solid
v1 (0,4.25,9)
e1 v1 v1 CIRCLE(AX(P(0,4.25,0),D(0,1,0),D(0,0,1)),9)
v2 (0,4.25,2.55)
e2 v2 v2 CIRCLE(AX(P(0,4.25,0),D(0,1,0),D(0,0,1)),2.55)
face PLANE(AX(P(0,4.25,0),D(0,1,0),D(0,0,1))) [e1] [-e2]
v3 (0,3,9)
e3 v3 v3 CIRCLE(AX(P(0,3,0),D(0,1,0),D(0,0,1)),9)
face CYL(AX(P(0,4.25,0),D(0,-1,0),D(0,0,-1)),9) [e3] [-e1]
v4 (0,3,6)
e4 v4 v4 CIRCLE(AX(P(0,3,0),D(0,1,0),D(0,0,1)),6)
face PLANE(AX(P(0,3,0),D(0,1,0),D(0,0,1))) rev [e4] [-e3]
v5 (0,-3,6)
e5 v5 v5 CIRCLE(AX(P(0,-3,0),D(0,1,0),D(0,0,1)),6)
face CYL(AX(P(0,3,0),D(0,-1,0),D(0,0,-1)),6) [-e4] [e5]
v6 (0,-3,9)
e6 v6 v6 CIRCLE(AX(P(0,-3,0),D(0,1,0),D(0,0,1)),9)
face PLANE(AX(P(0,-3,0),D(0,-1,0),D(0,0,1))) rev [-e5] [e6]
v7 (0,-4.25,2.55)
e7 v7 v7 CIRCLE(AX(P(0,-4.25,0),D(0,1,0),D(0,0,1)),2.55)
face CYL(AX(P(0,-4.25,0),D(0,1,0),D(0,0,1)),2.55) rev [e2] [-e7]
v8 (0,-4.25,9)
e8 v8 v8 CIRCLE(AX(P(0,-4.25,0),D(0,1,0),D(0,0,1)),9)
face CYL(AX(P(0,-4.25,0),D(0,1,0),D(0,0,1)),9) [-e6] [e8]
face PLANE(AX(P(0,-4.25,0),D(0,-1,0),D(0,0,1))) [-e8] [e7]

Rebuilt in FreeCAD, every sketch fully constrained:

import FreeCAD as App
import Part
import Sketcher
from FreeCAD import Vector
Q = App.Units.Quantity

doc = App.newDocument("Part")
body = doc.addObject("PartDesign::Body", "Body")

# Sketch on XZ plane
sketch1 = doc.addObject("Sketcher::SketchObject", "Sketch")
body.addObject(sketch1)
sketch1.AttachmentSupport = (doc.XZ_Plane, [""])
sketch1.MapMode = "FlatFace"
sketch1.addGeometry(Part.Circle(Vector(0, 0, 0), Vector(0, 0, 1), 6), False)
sketch1.addConstraint([
    Sketcher.Constraint("Coincident", 0, 3, -1, 1),
    Sketcher.Constraint("Diameter", 0, Q("12 mm")),
])
pad1 = doc.addObject("PartDesign::Pad", "Pad")
body.addObject(pad1)
pad1.Profile = sketch1
pad1.Length = 6
pad1.Midplane = True

# Sketch on XZ plane
sketch2 = doc.addObject("Sketcher::SketchObject", "Sketch001")
body.addObject(sketch2)
sketch2.AttachmentSupport = (doc.XZ_Plane, [""])
sketch2.MapMode = "FlatFace"
sketch2.AttachmentOffset = App.Placement(Vector(0, 0, -3), App.Rotation())
sketch2.addGeometry(Part.Circle(Vector(0, 0, 0), Vector(0, 0, 1), 9), False)
sketch2.addConstraint([
    Sketcher.Constraint("Coincident", 0, 3, -1, 1),
    Sketcher.Constraint("Diameter", 0, Q("18 mm")),
])
pad2 = doc.addObject("PartDesign::Pad", "Pad001")
body.addObject(pad2)
pad2.Profile = sketch2
pad2.Length = 1.25
pad2.Reversed = True
doc.recompute()

mirrored = doc.addObject("PartDesign::Mirrored", "Mirrored")
body.addObject(mirrored)
mirrored.Originals = [pad2]
mirrored.MirrorPlane = (doc.XZ_Plane, [""])
body.Tip = mirrored

# Sketch on XZ plane
sketch3 = doc.addObject("Sketcher::SketchObject", "Sketch002")
body.addObject(sketch3)
sketch3.AttachmentSupport = (doc.XZ_Plane, [""])
sketch3.MapMode = "FlatFace"
sketch3.AttachmentOffset = App.Placement(Vector(0, 0, -4.25), App.Rotation())
sketch3.addGeometry(Part.Circle(Vector(0, 0, 0), Vector(0, 0, 1), 2.5), False)
sketch3.addConstraint([
    Sketcher.Constraint("Coincident", 0, 3, -1, 1),
    Sketcher.Constraint("Diameter", 0, Q("5.1 mm")),
])
pocket1 = doc.addObject("PartDesign::Pocket", "Pocket")
body.addObject(pocket1)
pocket1.Profile = sketch3
pocket1.Type = "ThroughAll"
pocket1.Reversed = True

doc.recompute()
